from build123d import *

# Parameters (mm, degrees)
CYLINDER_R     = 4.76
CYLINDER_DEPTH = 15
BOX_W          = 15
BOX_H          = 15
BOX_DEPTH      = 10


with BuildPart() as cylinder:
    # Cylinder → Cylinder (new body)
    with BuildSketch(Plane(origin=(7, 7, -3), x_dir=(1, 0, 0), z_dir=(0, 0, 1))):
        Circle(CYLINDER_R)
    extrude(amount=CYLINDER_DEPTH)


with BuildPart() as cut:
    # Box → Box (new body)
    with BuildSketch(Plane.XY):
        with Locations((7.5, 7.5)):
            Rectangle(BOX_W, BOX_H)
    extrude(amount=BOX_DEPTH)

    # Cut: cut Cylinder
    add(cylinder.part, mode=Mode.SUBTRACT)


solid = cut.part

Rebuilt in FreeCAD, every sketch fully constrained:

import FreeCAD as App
import Part
import Sketcher


def add_polygon(sketch, points):
    """Adds a closed chain of lines whose ends are joined by coincident constraints."""
    first, n = sketch.GeometryCount, len(points)
    for a, b in zip(points, points[1:] + points[:1]):
        sketch.addGeometry(Part.LineSegment(App.Vector(*a, 0), App.Vector(*b, 0)), False)
    for i in range(n):
        sketch.addConstraint(Sketcher.Constraint("Coincident", first + i, 2, first + (i + 1) % n, 1))

doc = App.newDocument("Part")
body = doc.addObject("PartDesign::Body", "Body")

# Sketch on XY plane
sketch1 = doc.addObject("Sketcher::SketchObject", "Sketch")
body.addObject(sketch1)
sketch1.AttachmentSupport = (doc.XY_Plane, [""])
sketch1.MapMode = "FlatFace"
sketch1.AttachmentOffset = App.Placement(App.Vector(0, 0, -3), App.Rotation())
sketch1.addGeometry(Part.Circle(App.Vector(7, 7, 0), App.Vector(0, 0, 1), 4.8), False)
sketch1.addConstraint(Sketcher.Constraint("Diameter", 0, 9.52))
sketch1.addConstraint(Sketcher.Constraint("DistanceX", -1, 1, 0, 3, 7.0))
sketch1.addConstraint(Sketcher.Constraint("DistanceY", -1, 1, 0, 3, 7.0))
pad1 = doc.addObject("PartDesign::Pad", "Pad")
body.addObject(pad1)
pad1.Profile = sketch1
pad1.Length = 15
body2 = doc.addObject("PartDesign::Body", "Body001")

# Sketch on XY plane
sketch2 = doc.addObject("Sketcher::SketchObject", "Sketch001")
body2.addObject(sketch2)
sketch2.AttachmentSupport = (doc.getObject("XY_Plane001"), [""])
sketch2.MapMode = "FlatFace"
add_polygon(sketch2, [(0, 15), (0, 0), (15, 0), (15, 15)])  # lines 0-3
sketch2.addConstraint(Sketcher.Constraint("Vertical", 0))
sketch2.addConstraint(Sketcher.Constraint("Horizontal", 1))
sketch2.addConstraint(Sketcher.Constraint("Vertical", 2))
sketch2.addConstraint(Sketcher.Constraint("Horizontal", 3))
sketch2.addConstraint(Sketcher.Constraint("Coincident", 0, 2, -1, 1))
sketch2.addConstraint(Sketcher.Constraint("Equal", 3, 0))
sketch2.addConstraint(Sketcher.Constraint("DistanceX", 1, 1, 1, 2, 15.0))
pad2 = doc.addObject("PartDesign::Pad", "Pad001")
body2.addObject(pad2)
pad2.Profile = sketch2
pad2.Length = 10
doc.recompute()

boolean = doc.addObject("PartDesign::Boolean", "Boolean")
body2.addObject(boolean)
boolean.Type = "Cut"
boolean.addObjects([body])

doc.recompute()
